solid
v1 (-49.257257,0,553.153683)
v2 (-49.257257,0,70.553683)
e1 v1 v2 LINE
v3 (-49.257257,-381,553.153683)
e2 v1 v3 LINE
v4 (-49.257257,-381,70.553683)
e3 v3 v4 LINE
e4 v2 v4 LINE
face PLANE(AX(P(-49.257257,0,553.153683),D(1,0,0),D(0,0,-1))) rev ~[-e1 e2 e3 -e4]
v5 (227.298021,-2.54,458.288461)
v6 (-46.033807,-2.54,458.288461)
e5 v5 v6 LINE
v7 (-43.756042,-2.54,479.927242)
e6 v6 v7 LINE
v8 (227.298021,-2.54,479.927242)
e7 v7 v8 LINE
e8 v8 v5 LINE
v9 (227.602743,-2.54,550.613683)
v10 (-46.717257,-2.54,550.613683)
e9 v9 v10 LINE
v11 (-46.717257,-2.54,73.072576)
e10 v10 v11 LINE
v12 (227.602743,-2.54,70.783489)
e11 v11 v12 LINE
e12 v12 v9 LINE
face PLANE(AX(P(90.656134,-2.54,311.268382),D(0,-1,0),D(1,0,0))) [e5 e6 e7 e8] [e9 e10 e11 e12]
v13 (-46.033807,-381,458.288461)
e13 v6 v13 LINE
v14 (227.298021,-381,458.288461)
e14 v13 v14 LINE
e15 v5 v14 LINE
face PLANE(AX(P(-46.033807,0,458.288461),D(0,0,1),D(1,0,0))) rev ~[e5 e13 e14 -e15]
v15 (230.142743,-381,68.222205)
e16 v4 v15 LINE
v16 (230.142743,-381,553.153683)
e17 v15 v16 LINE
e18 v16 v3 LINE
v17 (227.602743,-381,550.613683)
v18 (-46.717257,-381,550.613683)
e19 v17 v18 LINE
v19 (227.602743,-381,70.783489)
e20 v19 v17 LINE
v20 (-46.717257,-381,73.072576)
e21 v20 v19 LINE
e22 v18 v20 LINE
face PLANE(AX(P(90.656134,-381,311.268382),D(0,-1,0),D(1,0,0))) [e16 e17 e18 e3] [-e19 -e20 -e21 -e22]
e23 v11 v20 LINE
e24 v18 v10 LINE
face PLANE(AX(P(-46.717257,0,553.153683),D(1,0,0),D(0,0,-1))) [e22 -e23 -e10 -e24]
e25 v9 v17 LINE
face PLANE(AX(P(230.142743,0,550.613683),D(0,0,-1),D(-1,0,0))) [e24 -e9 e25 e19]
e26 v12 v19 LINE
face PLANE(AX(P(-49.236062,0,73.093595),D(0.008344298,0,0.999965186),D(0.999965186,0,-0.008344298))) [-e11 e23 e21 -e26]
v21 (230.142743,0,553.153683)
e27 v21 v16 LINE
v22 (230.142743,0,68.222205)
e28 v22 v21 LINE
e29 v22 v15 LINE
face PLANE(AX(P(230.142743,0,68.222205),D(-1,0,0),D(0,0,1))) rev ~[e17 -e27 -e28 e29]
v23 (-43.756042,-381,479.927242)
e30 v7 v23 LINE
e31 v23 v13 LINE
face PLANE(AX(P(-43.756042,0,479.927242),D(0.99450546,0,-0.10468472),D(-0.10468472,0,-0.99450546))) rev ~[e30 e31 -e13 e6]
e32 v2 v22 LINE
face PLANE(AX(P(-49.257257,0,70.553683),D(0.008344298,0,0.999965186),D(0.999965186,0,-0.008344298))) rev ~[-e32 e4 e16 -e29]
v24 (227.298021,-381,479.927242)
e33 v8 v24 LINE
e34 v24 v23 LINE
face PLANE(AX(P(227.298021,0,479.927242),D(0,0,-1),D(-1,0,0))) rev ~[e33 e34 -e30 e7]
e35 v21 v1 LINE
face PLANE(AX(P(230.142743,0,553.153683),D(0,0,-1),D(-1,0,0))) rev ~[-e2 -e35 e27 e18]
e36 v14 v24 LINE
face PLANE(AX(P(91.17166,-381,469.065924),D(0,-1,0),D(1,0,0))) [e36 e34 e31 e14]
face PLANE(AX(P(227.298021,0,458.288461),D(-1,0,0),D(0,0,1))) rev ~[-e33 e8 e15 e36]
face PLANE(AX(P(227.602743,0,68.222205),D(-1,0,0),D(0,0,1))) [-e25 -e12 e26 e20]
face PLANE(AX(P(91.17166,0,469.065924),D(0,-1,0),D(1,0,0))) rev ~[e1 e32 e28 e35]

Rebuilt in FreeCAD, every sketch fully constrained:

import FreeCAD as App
import Part
import Sketcher

V = App.Vector
Q = App.Units.Quantity


def faces_at(feature, points):
    """Names of the faces that lie closest to the given points."""
    faces = feature.Shape.Faces
    near = lambda p: min(range(len(faces)), key=lambda i: faces[i].distToShape(Part.Vertex(*p))[0])
    return sorted({f"Face{near(p) + 1}" for p in points})


def add_polygon(sketch, points):
    """Adds a closed chain of lines whose ends are joined by coincident constraints."""
    first, n = sketch.GeometryCount, len(points)
    for a, b in zip(points, points[1:] + points[:1]):
        sketch.addGeometry(Part.LineSegment(App.Vector(*a, 0), App.Vector(*b, 0)), False)
    for i in range(n):
        sketch.addConstraint(Sketcher.Constraint("Coincident", first + i, 2, first + (i + 1) % n, 1))

doc = App.newDocument("Part")
body = doc.addObject("PartDesign::Body", "Body")

sketch1 = body.newObject("Sketcher::SketchObject", "Sketch")
sketch1.AttachmentSupport = (doc.getObject("XZ_Plane"), [""])
sketch1.MapMode = "FlatFace"
add_polygon(sketch1, [(-49, 553), (-49, 71), (230, 68), (230, 553)])
sketch1.addConstraint([
    Sketcher.Constraint("Vertical", 0),
    Sketcher.Constraint("Vertical", 2),
    Sketcher.Constraint("Horizontal", 3),
    Sketcher.Constraint("DistanceX", 3, 2, 3, 1, Q("11 in")),
    Sketcher.Constraint("DistanceY", 0, 2, 0, 1, Q("19 in")),
    Sketcher.Constraint("DistanceY", 2, 1, 2, 2, 484.931478),
    Sketcher.Constraint("DistanceX", 0, 2, -1, 1, 49.257257),
    Sketcher.Constraint("DistanceY", -1, 1, 0, 2, 70.553683),
])
pad1 = body.newObject("PartDesign::Pad", "Pad")
pad1.Profile = sketch1
pad1.Length = Q("15 in")
doc.recompute()

thickness = body.newObject("PartDesign::Thickness", "Thickness")
thickness.Base = (pad1, faces_at(pad1, [(90.443, -381, 310.688)]))
thickness.Value = Q("0.1 in")
thickness.Reversed = True
thickness.Join = "Arc"

sketch2 = body.newObject("Sketcher::SketchObject", "Sketch001")
sketch2.AttachmentSupport = (doc.getObject("XZ_Plane"), [""])
sketch2.MapMode = "FlatFace"
add_polygon(sketch2, [(227, 480), (-44, 480), (-46, 458), (227, 458)])
sketch2.addConstraint([
    Sketcher.Constraint("Horizontal", 0),
    Sketcher.Constraint("Horizontal", 2),
    Sketcher.Constraint("Vertical", 3),
    Sketcher.Constraint("DistanceX", 2, 1, 2, 2, 273.331828),
    Sketcher.Constraint("DistanceY", 3, 1, 3, 2, 21.638781),
    Sketcher.Constraint("DistanceX", 0, 2, 0, 1, 271.054063),
    Sketcher.Constraint("DistanceY", -1, 1, 0, 2, 479.927242),
    Sketcher.Constraint("DistanceX", -1, 1, 2, 2, 227.298021),
])
pad2 = body.newObject("PartDesign::Pad", "Pad001")
pad2.Profile = sketch2
pad2.Length = Q("15 in")

doc.recompute()
